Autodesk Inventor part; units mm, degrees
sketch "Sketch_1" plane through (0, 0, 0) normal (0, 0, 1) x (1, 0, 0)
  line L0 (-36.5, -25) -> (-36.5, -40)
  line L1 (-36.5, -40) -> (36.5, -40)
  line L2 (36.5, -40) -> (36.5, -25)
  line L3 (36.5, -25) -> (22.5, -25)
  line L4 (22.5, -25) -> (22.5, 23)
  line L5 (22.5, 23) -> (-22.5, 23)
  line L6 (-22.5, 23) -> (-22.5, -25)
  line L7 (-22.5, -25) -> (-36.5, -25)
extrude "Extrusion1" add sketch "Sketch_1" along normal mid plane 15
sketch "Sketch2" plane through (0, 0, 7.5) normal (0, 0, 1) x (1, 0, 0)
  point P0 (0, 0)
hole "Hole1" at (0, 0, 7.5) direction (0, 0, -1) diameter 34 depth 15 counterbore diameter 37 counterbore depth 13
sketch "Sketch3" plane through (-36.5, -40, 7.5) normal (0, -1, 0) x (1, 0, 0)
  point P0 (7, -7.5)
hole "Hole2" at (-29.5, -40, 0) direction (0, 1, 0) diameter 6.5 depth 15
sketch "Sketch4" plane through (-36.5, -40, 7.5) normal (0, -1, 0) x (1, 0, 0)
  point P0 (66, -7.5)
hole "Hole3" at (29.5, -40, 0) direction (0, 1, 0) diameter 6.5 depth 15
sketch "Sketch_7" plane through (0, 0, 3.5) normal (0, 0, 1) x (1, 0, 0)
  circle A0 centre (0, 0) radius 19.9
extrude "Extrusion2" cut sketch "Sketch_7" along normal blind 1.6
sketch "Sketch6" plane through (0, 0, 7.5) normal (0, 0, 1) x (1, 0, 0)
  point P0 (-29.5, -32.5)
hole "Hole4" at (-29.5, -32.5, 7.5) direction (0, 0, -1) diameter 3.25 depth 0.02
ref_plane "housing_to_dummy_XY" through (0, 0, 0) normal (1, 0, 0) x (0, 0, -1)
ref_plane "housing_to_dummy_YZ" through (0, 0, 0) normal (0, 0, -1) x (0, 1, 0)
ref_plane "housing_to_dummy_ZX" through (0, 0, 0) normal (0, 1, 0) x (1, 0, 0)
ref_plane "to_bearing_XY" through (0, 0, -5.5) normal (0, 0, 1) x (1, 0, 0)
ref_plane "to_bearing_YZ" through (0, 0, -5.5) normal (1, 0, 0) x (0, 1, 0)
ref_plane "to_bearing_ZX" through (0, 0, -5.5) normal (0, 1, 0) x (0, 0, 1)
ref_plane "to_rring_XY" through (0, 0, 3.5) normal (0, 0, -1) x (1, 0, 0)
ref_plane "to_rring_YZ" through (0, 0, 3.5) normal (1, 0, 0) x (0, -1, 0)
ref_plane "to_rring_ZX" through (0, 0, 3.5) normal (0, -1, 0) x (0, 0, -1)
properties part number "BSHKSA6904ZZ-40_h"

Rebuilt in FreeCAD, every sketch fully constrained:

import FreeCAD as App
import Part
import Sketcher
from FreeCAD import Vector
Q = App.Units.Quantity

doc = App.newDocument("Part")
params = doc.addObject("Spreadsheet::Sheet", "Params")
for row, (alias, value) in enumerate([
    ("sketch1_width", "14 mm"),
    ("sketch1_width2", "73 mm"),
    ("sketch1_height", "15 mm"),
    ("sketch1_height2", "48 mm"),
    ("pad1_length", "15 mm"),
    ("sketch2_diameter", "34 mm"),
    ("hole_diameter", "34 mm"),
    ("hole_depth", "15 mm"),
    ("hole_cbore_diameter", "37 mm"),
    ("hole_cbore_depth", "13 mm"),
    ("sketch3_diameter", "6.5 mm"),
    ("hole2_diameter", "6.5 mm"),
    ("hole2_depth", "15 mm"),
    ("sketch4_diameter", "6.5 mm"),
    ("hole3_diameter", "6.5 mm"),
    ("hole3_depth", "15 mm"),
    ("sketch5_diameter", "39.8 mm"),
    ("pocket1_length", "1.6 mm"),
    ("sketch6_diameter", "3.25 mm"),
    ("hole4_diameter", "3.25 mm"),
    ("hole4_depth", "0.02 mm"),
], start=1):
    params.set(f"A{row}", alias)
    params.set(f"B{row}", "=" + value)
    params.setAlias(f"B{row}", alias)

body = doc.addObject("PartDesign::Body", "Body")

# Sketch on XY plane
sketch1 = body.newObject("Sketcher::SketchObject", "Sketch")
sketch1.AttachmentSupport = (doc.getObject("XY_Plane"), [""])
sketch1.MapMode = "FlatFace"
sketch1.addGeometry(Part.LineSegment(Vector(-22, -25, 0), Vector(-36, -25, 0)), False)
sketch1.addGeometry(Part.LineSegment(Vector(-36, -25, 0), Vector(-36, -40, 0)), False)
sketch1.addGeometry(Part.LineSegment(Vector(-36, -40, 0), Vector(36, -40, 0)), False)
sketch1.addGeometry(Part.LineSegment(Vector(36, -40, 0), Vector(36, -25, 0)), False)
sketch1.addGeometry(Part.LineSegment(Vector(36, -25, 0), Vector(22, -25, 0)), False)
sketch1.addGeometry(Part.LineSegment(Vector(22, -25, 0), Vector(22, 23, 0)), False)
sketch1.addGeometry(Part.LineSegment(Vector(22, 23, 0), Vector(-22, 23, 0)), False)
sketch1.addGeometry(Part.LineSegment(Vector(-22, 23, 0), Vector(-22, -25, 0)), False)
sketch1.addConstraint(Sketcher.Constraint("Coincident", 0, 2, 1, 1))
sketch1.addConstraint(Sketcher.Constraint("Coincident", 1, 2, 2, 1))
sketch1.addConstraint(Sketcher.Constraint("Coincident", 2, 2, 3, 1))
sketch1.addConstraint(Sketcher.Constraint("Coincident", 3, 2, 4, 1))
sketch1.addConstraint(Sketcher.Constraint("Coincident", 4, 2, 5, 1))
sketch1.addConstraint(Sketcher.Constraint("Coincident", 5, 2, 6, 1))
sketch1.addConstraint(Sketcher.Constraint("Coincident", 6, 2, 7, 1))
sketch1.addConstraint(Sketcher.Constraint("Coincident", 7, 2, 0, 1))
sketch1.addConstraint(Sketcher.Constraint("Horizontal", 0))
sketch1.addConstraint(Sketcher.Constraint("Vertical", 1))
sketch1.addConstraint(Sketcher.Constraint("Horizontal", 2))
sketch1.addConstraint(Sketcher.Constraint("Vertical", 3))
sketch1.addConstraint(Sketcher.Constraint("Horizontal", 4))
sketch1.addConstraint(Sketcher.Constraint("Vertical", 5))
sketch1.addConstraint(Sketcher.Constraint("Horizontal", 6))
sketch1.addConstraint(Sketcher.Constraint("Vertical", 7))
sketch1.addConstraint(Sketcher.Constraint("Symmetric", 0, 2, 3, 2, -2))
sketch1.addConstraint(Sketcher.Constraint("Equal", 0, 4))
sketch1.addConstraint(Sketcher.Constraint("DistanceX", 0, 2, 0, 1, Q("14 mm")))
sketch1.addConstraint(Sketcher.Constraint("DistanceX", 2, 1, 2, 2, Q("73 mm")))
sketch1.addConstraint(Sketcher.Constraint("DistanceY", 1, 2, 1, 1, Q("15 mm")))
sketch1.addConstraint(Sketcher.Constraint("DistanceY", 5, 1, 5, 2, Q("48 mm")))
sketch1.addConstraint(Sketcher.Constraint("DistanceY", 0, 2, -1, 1, Q("25 mm")))
sketch1.setExpression("Constraints[18]", "Params.sketch1_width")
sketch1.setExpression("Constraints[19]", "Params.sketch1_width2")
sketch1.setExpression("Constraints[20]", "Params.sketch1_height")
sketch1.setExpression("Constraints[21]", "Params.sketch1_height2")
pad1 = body.newObject("PartDesign::Pad", "Pad")
pad1.Profile = sketch1
pad1.setExpression("Length", "Params.pad1_length")
pad1.Midplane = True

# Sketch on XY plane
sketch2 = body.newObject("Sketcher::SketchObject", "Sketch001")
sketch2.AttachmentSupport = (doc.getObject("XY_Plane"), [""])
sketch2.MapMode = "FlatFace"
sketch2.AttachmentOffset = App.Placement(Vector(0, 0, 7.5), App.Rotation())
sketch2.addGeometry(Part.Circle(Vector(0, 0, 0), Vector(0, 0, 1), 17), False)
sketch2.addConstraint(Sketcher.Constraint("Coincident", 0, 3, -1, 1))
sketch2.addConstraint(Sketcher.Constraint("Diameter", 0, Q("34 mm")))
sketch2.setExpression("Constraints[1]", "Params.sketch2_diameter")
doc.recompute()
hole = body.newObject("PartDesign::Hole", "Hole")
hole.Profile = sketch2
hole.ThreadType = "None"
hole.setExpression("Diameter", "Params.hole_diameter")
hole.DepthType = "Dimension"
hole.setExpression("Depth", "Params.hole_depth")
hole.DrillPoint = "Flat"
hole.HoleCutType = "Counterbore"
hole.setExpression("HoleCutDiameter", "Params.hole_cbore_diameter")
hole.setExpression("HoleCutDepth", "Params.hole_cbore_depth")

# Sketch on XZ plane
sketch3 = body.newObject("Sketcher::SketchObject", "Sketch002")
sketch3.AttachmentSupport = (doc.getObject("XZ_Plane"), [""])
sketch3.MapMode = "FlatFace"
sketch3.AttachmentOffset = App.Placement(Vector(0, 0, 40), App.Rotation())
sketch3.addGeometry(Part.Circle(Vector(-29.5, 0, 0), Vector(0, 0, 1), 3.2), False)
sketch3.addConstraint(Sketcher.Constraint("PointOnObject", 0, 3, -1))
sketch3.addConstraint(Sketcher.Constraint("Diameter", 0, Q("6.5 mm")))
sketch3.addConstraint(Sketcher.Constraint("DistanceX", 0, 3, -1, 1, Q("29.5 mm")))
sketch3.setExpression("Constraints[1]", "Params.sketch3_diameter")
doc.recompute()
hole2 = body.newObject("PartDesign::Hole", "Hole001")
hole2.Profile = sketch3
hole2.ThreadType = "None"
hole2.setExpression("Diameter", "Params.hole2_diameter")
hole2.DepthType = "Dimension"
hole2.setExpression("Depth", "Params.hole2_depth")
hole2.DrillPoint = "Flat"

# Sketch on XZ plane
sketch4 = body.newObject("Sketcher::SketchObject", "Sketch003")
sketch4.AttachmentSupport = (doc.getObject("XZ_Plane"), [""])
sketch4.MapMode = "FlatFace"
sketch4.AttachmentOffset = App.Placement(Vector(0, 0, 40), App.Rotation())
sketch4.addGeometry(Part.Circle(Vector(29.5, 0, 0), Vector(0, 0, 1), 3.2), False)
sketch4.addConstraint(Sketcher.Constraint("PointOnObject", 0, 3, -1))
sketch4.addConstraint(Sketcher.Constraint("Diameter", 0, Q("6.5 mm")))
sketch4.addConstraint(Sketcher.Constraint("DistanceX", -1, 1, 0, 3, Q("29.5 mm")))
sketch4.setExpression("Constraints[1]", "Params.sketch4_diameter")
doc.recompute()
hole3 = body.newObject("PartDesign::Hole", "Hole002")
hole3.Profile = sketch4
hole3.ThreadType = "None"
hole3.setExpression("Diameter", "Params.hole3_diameter")
hole3.DepthType = "Dimension"
hole3.setExpression("Depth", "Params.hole3_depth")
hole3.DrillPoint = "Flat"

# Sketch on XY plane
sketch5 = body.newObject("Sketcher::SketchObject", "Sketch004")
sketch5.AttachmentSupport = (doc.getObject("XY_Plane"), [""])
sketch5.MapMode = "FlatFace"
sketch5.AttachmentOffset = App.Placement(Vector(0, 0, 3.5), App.Rotation())
sketch5.addGeometry(Part.Circle(Vector(0, 0, 0), Vector(0, 0, 1), 20), False)
sketch5.addConstraint(Sketcher.Constraint("Coincident", 0, 3, -1, 1))
sketch5.addConstraint(Sketcher.Constraint("Diameter", 0, Q("39.8 mm")))
sketch5.setExpression("Constraints[1]", "Params.sketch5_diameter")
pocket1 = body.newObject("PartDesign::Pocket", "Pocket")
pocket1.Profile = sketch5
pocket1.setExpression("Length", "Params.pocket1_length")
pocket1.Reversed = True

# Sketch on XY plane
sketch6 = body.newObject("Sketcher::SketchObject", "Sketch005")
sketch6.AttachmentSupport = (doc.getObject("XY_Plane"), [""])
sketch6.MapMode = "FlatFace"
sketch6.AttachmentOffset = App.Placement(Vector(0, 0, 7.5), App.Rotation())
sketch6.addGeometry(Part.Circle(Vector(-29.5, -32.5, 0), Vector(0, 0, 1), 1.6), False)
sketch6.addConstraint(Sketcher.Constraint("Diameter", 0, Q("3.25 mm")))
sketch6.addConstraint(Sketcher.Constraint("DistanceX", 0, 3, -1, 1, Q("29.5 mm")))
sketch6.addConstraint(Sketcher.Constraint("DistanceY", 0, 3, -1, 1, Q("32.5 mm")))
sketch6.setExpression("Constraints[0]", "Params.sketch6_diameter")
doc.recompute()
hole4 = body.newObject("PartDesign::Hole", "Hole003")
hole4.Profile = sketch6
hole4.ThreadType = "None"
hole4.setExpression("Diameter", "Params.hole4_diameter")
hole4.DepthType = "Dimension"
hole4.setExpression("Depth", "Params.hole4_depth")
hole4.DrillPoint = "Flat"

doc.recompute()
